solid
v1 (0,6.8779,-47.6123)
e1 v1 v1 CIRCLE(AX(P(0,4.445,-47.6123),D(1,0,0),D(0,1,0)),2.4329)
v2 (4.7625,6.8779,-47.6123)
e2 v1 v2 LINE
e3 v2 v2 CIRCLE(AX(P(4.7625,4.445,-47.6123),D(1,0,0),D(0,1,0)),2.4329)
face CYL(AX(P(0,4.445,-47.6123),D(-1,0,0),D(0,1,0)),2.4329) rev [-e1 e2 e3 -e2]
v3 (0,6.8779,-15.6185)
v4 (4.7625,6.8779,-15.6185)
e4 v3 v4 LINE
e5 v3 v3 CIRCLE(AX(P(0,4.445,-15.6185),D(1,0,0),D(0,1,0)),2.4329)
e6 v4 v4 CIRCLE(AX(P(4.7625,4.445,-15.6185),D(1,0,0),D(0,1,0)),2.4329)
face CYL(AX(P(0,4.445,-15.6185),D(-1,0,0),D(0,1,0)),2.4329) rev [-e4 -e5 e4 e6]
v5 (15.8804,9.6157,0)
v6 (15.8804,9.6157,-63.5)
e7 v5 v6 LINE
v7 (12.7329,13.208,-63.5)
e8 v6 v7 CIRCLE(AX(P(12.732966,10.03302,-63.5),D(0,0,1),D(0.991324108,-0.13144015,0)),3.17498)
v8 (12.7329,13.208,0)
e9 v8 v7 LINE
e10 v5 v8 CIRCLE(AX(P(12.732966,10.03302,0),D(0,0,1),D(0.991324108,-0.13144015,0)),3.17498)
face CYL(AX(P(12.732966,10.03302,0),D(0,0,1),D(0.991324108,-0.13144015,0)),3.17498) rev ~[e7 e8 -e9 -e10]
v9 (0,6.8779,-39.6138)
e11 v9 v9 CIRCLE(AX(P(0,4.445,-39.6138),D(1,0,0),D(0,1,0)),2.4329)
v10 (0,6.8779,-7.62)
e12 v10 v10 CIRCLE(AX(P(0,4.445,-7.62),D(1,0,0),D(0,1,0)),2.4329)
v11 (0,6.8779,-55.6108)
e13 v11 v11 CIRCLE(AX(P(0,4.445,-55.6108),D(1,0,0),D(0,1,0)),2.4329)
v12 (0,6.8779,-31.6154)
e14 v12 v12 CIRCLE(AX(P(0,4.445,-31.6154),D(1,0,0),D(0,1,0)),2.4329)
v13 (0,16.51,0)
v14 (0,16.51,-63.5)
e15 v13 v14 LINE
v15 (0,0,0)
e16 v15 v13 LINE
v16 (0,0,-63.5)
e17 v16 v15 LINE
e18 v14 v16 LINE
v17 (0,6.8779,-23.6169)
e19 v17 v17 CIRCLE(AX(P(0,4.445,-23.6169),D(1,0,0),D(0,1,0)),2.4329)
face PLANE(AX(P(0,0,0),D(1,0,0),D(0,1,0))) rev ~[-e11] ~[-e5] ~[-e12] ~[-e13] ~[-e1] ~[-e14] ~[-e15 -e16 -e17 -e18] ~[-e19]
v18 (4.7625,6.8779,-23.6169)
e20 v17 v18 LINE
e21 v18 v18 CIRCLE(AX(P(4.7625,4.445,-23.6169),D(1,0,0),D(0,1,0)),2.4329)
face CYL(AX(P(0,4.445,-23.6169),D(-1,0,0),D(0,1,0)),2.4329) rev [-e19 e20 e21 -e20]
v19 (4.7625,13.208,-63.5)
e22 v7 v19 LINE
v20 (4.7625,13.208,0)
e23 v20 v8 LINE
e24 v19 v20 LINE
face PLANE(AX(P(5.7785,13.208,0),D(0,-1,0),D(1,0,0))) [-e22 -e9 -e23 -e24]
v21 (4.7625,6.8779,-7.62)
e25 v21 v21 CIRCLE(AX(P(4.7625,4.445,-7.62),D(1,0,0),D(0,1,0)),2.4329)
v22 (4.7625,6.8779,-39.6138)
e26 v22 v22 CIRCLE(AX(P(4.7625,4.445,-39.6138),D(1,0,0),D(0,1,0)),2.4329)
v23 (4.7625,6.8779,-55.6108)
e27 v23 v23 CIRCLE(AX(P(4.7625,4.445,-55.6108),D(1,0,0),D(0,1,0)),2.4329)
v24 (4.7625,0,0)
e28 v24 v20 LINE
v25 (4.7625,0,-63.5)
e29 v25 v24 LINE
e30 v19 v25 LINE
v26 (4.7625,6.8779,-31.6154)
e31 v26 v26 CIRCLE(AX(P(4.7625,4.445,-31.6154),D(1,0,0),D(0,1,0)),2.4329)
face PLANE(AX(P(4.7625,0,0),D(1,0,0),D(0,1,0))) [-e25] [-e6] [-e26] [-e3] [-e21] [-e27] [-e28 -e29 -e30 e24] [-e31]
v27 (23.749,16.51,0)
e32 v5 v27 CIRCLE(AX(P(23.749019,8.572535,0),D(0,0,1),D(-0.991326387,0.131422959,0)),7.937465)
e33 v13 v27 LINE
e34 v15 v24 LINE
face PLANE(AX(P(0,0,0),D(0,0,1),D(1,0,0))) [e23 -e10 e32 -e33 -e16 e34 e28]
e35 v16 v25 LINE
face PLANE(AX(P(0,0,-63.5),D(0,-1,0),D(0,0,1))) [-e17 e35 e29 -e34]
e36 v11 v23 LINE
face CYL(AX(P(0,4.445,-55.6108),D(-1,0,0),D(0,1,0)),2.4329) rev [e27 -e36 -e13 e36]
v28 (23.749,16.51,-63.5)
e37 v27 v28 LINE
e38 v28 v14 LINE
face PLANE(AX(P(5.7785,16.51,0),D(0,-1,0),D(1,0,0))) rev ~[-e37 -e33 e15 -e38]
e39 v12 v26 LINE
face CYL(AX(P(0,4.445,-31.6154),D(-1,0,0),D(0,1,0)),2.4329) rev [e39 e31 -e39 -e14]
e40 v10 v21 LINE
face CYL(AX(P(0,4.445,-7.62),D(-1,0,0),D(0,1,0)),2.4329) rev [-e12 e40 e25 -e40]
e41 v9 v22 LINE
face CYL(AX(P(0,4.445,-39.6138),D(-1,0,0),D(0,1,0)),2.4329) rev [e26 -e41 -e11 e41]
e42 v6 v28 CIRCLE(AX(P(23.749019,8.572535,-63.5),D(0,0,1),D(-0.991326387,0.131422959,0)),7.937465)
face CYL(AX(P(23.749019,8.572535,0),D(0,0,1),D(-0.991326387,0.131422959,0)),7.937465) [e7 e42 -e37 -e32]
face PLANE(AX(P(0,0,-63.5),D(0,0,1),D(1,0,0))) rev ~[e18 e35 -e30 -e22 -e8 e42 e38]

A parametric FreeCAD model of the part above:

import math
import FreeCAD as App
import Part
import Sketcher
from FreeCAD import Vector
Q = App.Units.Quantity


def add_polygon(sketch, points):
    """Adds a closed chain of lines whose ends are joined by coincident constraints."""
    first, n = sketch.GeometryCount, len(points)
    for a, b in zip(points, points[1:] + points[:1]):
        sketch.addGeometry(Part.LineSegment(App.Vector(*a, 0), App.Vector(*b, 0)), False)
    for i in range(n):
        sketch.addConstraint(Sketcher.Constraint("Coincident", first + i, 2, first + (i + 1) % n, 1))

doc = App.newDocument("Part")
body = doc.addObject("PartDesign::Body", "Body")

# Sketch on YZ plane
sketch1 = body.newObject("Sketcher::SketchObject", "Sketch")
sketch1.AttachmentSupport = (doc.getObject("YZ_Plane"), [""])
sketch1.MapMode = "FlatFace"
add_polygon(sketch1, [(16.51, 0), (0, 0), (0, -63.5), (16.51, -63.5)])  # lines 0-3
sketch1.addGeometry(Part.Circle(Vector(4.445, -55.6108, 0), Vector(0, 0, 1), 2.4329), False)  # 4
sketch1.addGeometry(Part.Circle(Vector(4.445, -47.6123, 0), Vector(0, 0, 1), 2.4329), False)  # 5
sketch1.addGeometry(Part.Circle(Vector(4.445, -39.6138, 0), Vector(0, 0, 1), 2.4329), False)  # 6
sketch1.addGeometry(Part.Circle(Vector(4.445, -31.6154, 0), Vector(0, 0, 1), 2.4329), False)  # 7
sketch1.addGeometry(Part.Circle(Vector(4.445, -23.6169, 0), Vector(0, 0, 1), 2.4329), False)  # 8
sketch1.addGeometry(Part.Circle(Vector(4.445, -15.6185, 0), Vector(0, 0, 1), 2.4329), False)  # 9
sketch1.addGeometry(Part.Circle(Vector(4.445, -7.62, 0), Vector(0, 0, 1), 2.4329), False)  # 10
sketch1.addConstraint([
    Sketcher.Constraint("Horizontal", 0),
    Sketcher.Constraint("Vertical", 1),
    Sketcher.Constraint("Horizontal", 2),
    Sketcher.Constraint("Vertical", 3),
    Sketcher.Constraint("Coincident", 0, 2, -1, 1),
    Sketcher.Constraint("Equal", 4, 5),
    Sketcher.Constraint("Equal", 5, 6),
    Sketcher.Constraint("Equal", 6, 7),
    Sketcher.Constraint("Equal", 7, 8),
    Sketcher.Constraint("Equal", 8, 9),
    Sketcher.Constraint("Equal", 9, 10),
    Sketcher.Constraint("Vertical", 4, 3, 5, 3),
    Sketcher.Constraint("Vertical", 5, 3, 6, 3),
    Sketcher.Constraint("Vertical", 6, 3, 7, 3),
    Sketcher.Constraint("Vertical", 7, 3, 8, 3),
    Sketcher.Constraint("Vertical", 8, 3, 9, 3),
    Sketcher.Constraint("Vertical", 9, 3, 10, 3),
    Sketcher.Constraint("DistanceY", 1, 2, 1, 1, Q("2.5 in")),
    Sketcher.Constraint("DistanceX", 0, 2, 0, 1, Q("0.65 in")),
    Sketcher.Constraint("DistanceY", 10, 3, -1, 1, Q("0.3 in")),
    Sketcher.Constraint("DistanceY", 4, 3, 5, 3, Q("0.3149 in")),
    Sketcher.Constraint("DistanceY", 5, 3, 6, 3, Q("0.3149 in")),
    Sketcher.Constraint("DistanceY", 6, 3, 7, 3, Q("0.3149 in")),
    Sketcher.Constraint("DistanceY", 7, 3, 8, 3, Q("0.3149 in")),
    Sketcher.Constraint("DistanceY", 8, 3, 9, 3, Q("0.3149 in")),
    Sketcher.Constraint("DistanceY", 9, 3, 10, 3, Q("0.3149 in")),
    Sketcher.Constraint("Diameter", 4, Q("4.8658 mm")),
    Sketcher.Constraint("DistanceX", -1, 1, 4, 3, Q("0.175 in")),
])
pad1 = body.newObject("PartDesign::Pad", "Pad")
pad1.Profile = sketch1
pad1.Length = Q("0.1875 in")

# Sketch on YZ plane
sketch2 = body.newObject("Sketcher::SketchObject", "Sketch001")
sketch2.AttachmentSupport = (doc.getObject("YZ_Plane"), [""])
sketch2.MapMode = "FlatFace"
sketch2.AttachmentOffset = App.Placement(Vector(0, 0, 0.1875 * 25.4), App.Rotation())
add_polygon(sketch2, [(13.208, -63.5), (16.51, -63.5), (16.51, 0), (13.208, 0)])  # lines 0-3
sketch2.addConstraint([
    Sketcher.Constraint("Horizontal", 0),
    Sketcher.Constraint("Vertical", 1),
    Sketcher.Constraint("Horizontal", 2),
    Sketcher.Constraint("Vertical", 3),
    Sketcher.Constraint("PointOnObject", 1, 2, -1),
    Sketcher.Constraint("DistanceX", 0, 1, 0, 2, Q("0.13 in")),
    Sketcher.Constraint("DistanceY", 1, 1, 1, 2, Q("2.5 in")),
    Sketcher.Constraint("DistanceX", -1, 1, 0, 2, Q("0.65 in")),
])
pad2 = body.newObject("PartDesign::Pad", "Pad001")
pad2.Profile = sketch2
pad2.Length = Q("0.04 in")

# Sketch on XY plane
sketch3 = body.newObject("Sketcher::SketchObject", "Sketch002")
sketch3.AttachmentSupport = (doc.getObject("XY_Plane"), [""])
sketch3.MapMode = "FlatFace"
sketch3.addGeometry([
    Part.LineSegment(Vector(23.749, 16.51, 0), Vector(5.7785, 16.51, 0)),  # 0
    Part.LineSegment(Vector(5.7785, 16.51, 0), Vector(5.7785, 13.208, 0)),  # 1
    Part.LineSegment(Vector(5.7785, 13.208, 0), Vector(12.7329, 13.208, 0)),  # 2
    Part.ArcOfCircle(Part.Circle(Vector(12.7329, 10.033, 0), Vector(0, 0, 1), 3.175043), math.radians(-7.55231), math.radians(90)),  # 3
    Part.ArcOfCircle(Part.Circle(Vector(23.749, 8.5725, 0), Vector(0, 0, 1), 7.937451), math.radians(172.447906), math.radians(450)),  # 4
], False)
sketch3.addConstraint([
    Sketcher.Constraint("Coincident", 0, 2, 1, 1),
    Sketcher.Constraint("Coincident", 1, 2, 2, 1),
    Sketcher.Constraint("Tangent", 2, 2, 3, 2),
    Sketcher.Constraint("Tangent", 3, 1, 4, 1),
    Sketcher.Constraint("Tangent", 4, 2, 0, 1),
    Sketcher.Constraint("Horizontal", 0),
    Sketcher.Constraint("Vertical", 1),
    Sketcher.Constraint("Horizontal", 2),
    Sketcher.Constraint("Radius", 3, Q("0.125 in")),
    Sketcher.Constraint("Radius", 4, Q("0.3125 in")),
    Sketcher.Constraint("DistanceX", -1, 1, 4, 3, Q("0.935 in")),
    Sketcher.Constraint("DistanceY", 1, 2, 1, 1, Q("0.13 in")),
    Sketcher.Constraint("DistanceY", -1, 1, 0, 2, Q("0.65 in")),
    Sketcher.Constraint("DistanceX", 0, 2, 0, 1, Q("0.7075 in")),
])
pad3 = body.newObject("PartDesign::Pad", "Pad002")
pad3.Profile = sketch3
pad3.Length = Q("2.5 in")
pad3.Reversed = True

doc.recompute()
